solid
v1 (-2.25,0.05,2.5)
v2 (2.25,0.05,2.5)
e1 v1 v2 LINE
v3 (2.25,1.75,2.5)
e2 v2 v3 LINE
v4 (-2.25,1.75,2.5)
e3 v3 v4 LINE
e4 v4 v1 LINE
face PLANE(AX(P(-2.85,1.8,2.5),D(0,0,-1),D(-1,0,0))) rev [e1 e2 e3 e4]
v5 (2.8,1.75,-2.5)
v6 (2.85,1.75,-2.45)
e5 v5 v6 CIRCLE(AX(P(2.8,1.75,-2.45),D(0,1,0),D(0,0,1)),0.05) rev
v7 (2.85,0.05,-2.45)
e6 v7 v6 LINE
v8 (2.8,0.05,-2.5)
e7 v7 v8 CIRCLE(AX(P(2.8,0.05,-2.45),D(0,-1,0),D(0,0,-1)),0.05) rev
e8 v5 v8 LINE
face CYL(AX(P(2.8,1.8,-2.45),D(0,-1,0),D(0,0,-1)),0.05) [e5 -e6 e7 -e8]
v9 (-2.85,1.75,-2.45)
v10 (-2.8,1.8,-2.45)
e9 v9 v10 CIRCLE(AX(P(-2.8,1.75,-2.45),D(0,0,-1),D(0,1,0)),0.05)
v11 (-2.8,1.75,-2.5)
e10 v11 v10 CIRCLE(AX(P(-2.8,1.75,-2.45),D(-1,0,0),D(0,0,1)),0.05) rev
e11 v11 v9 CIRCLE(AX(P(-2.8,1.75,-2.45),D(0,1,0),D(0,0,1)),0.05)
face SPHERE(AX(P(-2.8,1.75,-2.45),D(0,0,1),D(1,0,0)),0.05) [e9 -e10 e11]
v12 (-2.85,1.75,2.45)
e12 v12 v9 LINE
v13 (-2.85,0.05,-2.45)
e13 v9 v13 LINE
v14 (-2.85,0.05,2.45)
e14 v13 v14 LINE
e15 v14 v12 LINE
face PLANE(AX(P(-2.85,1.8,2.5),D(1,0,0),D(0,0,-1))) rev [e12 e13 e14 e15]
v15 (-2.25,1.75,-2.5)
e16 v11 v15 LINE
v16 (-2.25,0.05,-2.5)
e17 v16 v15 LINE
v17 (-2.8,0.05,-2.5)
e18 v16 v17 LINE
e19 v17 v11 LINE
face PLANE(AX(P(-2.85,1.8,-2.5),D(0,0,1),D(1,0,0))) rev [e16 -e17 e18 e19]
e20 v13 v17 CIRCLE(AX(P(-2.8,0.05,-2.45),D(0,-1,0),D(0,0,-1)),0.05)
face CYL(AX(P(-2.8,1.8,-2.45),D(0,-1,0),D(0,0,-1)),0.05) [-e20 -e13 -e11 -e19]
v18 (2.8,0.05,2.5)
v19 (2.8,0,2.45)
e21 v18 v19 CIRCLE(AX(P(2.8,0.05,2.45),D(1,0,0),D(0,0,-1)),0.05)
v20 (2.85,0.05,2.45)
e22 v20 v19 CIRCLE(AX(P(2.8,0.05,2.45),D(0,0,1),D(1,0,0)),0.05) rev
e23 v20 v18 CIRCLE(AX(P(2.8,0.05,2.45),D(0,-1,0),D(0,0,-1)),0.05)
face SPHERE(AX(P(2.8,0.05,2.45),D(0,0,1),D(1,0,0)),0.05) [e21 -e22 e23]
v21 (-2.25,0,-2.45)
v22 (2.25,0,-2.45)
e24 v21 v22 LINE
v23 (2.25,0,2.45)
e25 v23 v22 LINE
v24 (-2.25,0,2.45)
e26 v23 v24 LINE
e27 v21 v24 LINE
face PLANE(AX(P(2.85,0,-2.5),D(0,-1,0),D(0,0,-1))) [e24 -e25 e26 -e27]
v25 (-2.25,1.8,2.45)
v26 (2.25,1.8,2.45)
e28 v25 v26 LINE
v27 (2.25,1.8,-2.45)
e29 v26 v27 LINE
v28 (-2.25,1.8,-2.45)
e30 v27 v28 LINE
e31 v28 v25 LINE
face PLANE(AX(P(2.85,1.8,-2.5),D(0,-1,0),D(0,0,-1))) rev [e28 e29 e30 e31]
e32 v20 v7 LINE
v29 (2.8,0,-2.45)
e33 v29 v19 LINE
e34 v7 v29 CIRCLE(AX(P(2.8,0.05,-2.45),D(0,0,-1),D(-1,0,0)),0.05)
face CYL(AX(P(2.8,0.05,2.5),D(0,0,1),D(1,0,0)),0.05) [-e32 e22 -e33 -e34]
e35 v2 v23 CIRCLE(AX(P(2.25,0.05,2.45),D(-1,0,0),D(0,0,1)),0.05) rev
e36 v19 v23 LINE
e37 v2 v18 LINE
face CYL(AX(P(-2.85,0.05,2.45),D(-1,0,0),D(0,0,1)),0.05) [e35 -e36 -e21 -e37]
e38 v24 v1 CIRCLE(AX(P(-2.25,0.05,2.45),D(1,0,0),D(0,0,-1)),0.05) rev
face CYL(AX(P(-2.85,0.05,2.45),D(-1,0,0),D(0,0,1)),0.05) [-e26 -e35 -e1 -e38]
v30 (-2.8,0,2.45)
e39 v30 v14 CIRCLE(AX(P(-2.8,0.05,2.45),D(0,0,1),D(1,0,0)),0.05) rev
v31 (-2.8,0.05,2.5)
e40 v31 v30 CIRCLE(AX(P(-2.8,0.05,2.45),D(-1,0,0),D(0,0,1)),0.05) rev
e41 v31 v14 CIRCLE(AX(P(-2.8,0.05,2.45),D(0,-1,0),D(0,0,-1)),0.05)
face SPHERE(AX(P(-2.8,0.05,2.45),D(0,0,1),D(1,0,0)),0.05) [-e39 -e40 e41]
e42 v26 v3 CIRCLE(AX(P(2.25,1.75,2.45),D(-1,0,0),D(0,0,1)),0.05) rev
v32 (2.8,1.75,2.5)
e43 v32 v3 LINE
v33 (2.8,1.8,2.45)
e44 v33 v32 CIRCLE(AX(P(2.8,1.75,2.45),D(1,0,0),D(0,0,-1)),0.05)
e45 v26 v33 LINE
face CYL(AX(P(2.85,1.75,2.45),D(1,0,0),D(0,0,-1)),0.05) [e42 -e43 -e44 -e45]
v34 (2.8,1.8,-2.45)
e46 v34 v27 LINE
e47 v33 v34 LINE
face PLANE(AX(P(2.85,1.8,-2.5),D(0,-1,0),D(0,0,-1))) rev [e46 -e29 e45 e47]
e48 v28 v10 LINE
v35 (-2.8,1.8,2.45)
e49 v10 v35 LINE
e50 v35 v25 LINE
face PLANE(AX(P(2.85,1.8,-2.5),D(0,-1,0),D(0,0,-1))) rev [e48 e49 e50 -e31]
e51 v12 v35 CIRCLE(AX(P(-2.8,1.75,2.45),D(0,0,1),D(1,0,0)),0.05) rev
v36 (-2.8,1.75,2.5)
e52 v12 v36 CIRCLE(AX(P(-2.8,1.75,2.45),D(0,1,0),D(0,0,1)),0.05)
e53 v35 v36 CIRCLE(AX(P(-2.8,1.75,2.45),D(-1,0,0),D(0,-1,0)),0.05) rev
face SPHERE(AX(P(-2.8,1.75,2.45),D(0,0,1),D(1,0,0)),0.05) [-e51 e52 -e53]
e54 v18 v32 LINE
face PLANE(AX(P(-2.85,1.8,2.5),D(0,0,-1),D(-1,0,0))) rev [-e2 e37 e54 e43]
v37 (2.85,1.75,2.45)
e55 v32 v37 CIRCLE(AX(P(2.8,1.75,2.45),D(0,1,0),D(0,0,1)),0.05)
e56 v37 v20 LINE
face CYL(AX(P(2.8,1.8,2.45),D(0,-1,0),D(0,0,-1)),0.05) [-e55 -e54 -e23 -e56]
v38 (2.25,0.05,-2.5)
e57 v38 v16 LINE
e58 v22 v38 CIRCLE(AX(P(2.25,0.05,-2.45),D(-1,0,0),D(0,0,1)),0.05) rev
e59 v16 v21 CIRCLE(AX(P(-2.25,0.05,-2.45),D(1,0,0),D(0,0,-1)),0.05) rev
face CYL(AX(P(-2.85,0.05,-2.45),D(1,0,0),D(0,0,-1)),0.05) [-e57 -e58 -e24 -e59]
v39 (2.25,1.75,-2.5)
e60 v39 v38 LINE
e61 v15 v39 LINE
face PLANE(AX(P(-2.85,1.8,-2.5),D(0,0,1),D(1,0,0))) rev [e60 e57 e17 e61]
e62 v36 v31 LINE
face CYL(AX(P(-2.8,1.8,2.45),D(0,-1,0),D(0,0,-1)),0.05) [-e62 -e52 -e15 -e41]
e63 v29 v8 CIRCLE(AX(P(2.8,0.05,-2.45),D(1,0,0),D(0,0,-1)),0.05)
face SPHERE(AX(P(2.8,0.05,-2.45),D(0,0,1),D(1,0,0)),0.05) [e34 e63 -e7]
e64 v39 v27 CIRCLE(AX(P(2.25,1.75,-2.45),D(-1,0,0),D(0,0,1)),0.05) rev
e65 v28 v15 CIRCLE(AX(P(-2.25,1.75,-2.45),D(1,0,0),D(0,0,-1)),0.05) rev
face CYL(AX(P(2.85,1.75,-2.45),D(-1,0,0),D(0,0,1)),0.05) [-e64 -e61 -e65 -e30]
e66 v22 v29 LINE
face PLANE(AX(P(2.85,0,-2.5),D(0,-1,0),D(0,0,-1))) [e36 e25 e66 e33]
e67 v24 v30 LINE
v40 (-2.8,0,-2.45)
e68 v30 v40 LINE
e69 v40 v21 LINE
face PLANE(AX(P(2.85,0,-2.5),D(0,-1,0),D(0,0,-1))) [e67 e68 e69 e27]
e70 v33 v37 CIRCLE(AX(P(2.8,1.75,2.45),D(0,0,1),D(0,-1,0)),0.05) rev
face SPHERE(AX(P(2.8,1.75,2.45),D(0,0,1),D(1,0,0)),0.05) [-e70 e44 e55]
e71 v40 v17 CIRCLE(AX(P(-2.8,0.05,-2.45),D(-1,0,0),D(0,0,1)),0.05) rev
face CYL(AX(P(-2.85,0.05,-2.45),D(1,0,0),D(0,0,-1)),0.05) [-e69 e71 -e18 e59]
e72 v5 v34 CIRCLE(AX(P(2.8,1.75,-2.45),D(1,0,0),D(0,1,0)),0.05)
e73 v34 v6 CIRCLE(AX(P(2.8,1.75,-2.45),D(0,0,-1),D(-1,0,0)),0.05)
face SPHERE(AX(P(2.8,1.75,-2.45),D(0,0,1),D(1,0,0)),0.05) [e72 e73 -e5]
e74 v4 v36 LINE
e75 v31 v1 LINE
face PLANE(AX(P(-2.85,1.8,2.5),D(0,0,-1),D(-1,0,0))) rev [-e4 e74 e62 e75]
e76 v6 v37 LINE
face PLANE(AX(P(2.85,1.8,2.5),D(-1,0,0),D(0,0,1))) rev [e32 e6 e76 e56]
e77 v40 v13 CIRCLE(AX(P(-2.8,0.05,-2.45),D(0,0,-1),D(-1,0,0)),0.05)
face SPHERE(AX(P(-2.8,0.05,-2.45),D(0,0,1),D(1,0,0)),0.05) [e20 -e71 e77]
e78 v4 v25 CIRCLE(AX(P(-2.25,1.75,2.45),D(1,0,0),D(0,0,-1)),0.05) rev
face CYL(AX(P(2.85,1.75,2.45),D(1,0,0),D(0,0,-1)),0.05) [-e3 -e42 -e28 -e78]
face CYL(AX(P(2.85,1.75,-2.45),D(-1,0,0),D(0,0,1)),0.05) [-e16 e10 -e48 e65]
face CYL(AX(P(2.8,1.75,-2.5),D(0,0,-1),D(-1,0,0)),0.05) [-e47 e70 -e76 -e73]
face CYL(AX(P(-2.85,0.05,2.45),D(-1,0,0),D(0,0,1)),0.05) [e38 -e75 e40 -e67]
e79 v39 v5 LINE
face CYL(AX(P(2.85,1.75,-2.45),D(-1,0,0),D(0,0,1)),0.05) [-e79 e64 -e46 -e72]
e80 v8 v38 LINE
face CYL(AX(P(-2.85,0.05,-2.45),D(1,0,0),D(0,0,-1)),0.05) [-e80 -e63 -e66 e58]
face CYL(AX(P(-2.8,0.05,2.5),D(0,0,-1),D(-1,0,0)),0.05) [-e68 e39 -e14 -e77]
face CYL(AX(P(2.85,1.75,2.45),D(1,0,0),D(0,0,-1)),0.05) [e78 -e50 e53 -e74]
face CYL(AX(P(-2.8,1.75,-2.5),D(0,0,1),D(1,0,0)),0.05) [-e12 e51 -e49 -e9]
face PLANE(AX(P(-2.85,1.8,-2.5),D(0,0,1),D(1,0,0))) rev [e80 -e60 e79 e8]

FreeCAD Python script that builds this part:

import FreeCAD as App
import Part
import Sketcher
from FreeCAD import Vector


def add_polygon(sketch, points):
    """Adds a closed chain of lines whose ends are joined by coincident constraints."""
    first, n = sketch.GeometryCount, len(points)
    for a, b in zip(points, points[1:] + points[:1]):
        sketch.addGeometry(Part.LineSegment(App.Vector(*a, 0), App.Vector(*b, 0)), False)
    for i in range(n):
        sketch.addConstraint(Sketcher.Constraint("Coincident", first + i, 2, first + (i + 1) % n, 1))

doc = App.newDocument("Part")
body = doc.addObject("PartDesign::Body", "Body")

# Sketch on XZ plane
sketch1 = doc.addObject("Sketcher::SketchObject", "Sketch")
body.addObject(sketch1)
sketch1.AttachmentSupport = (doc.XZ_Plane, [""])
sketch1.MapMode = "FlatFace"
add_polygon(sketch1, [(-2.85, -2.5), (-2.85, 2.5), (2.85, 2.5), (2.85, -2.5)])  # lines 0-3
sketch1.addConstraint([
    Sketcher.Constraint("Vertical", 0),
    Sketcher.Constraint("Horizontal", 1),
    Sketcher.Constraint("Vertical", 2),
    Sketcher.Constraint("Horizontal", 3),
    Sketcher.Constraint("Symmetric", 0, 2, 2, 2, -1, 1),
    Sketcher.Constraint("DistanceY", 0, 1, 0, 2, 5.0),
    Sketcher.Constraint("DistanceX", 1, 1, 1, 2, 5.7),
])
pad1 = doc.addObject("PartDesign::Pad", "Pad")
body.addObject(pad1)
pad1.Profile = sketch1
pad1.Length = 1.8
pad1.Reversed = True
doc.recompute()

fillet = doc.addObject("PartDesign::Fillet", "Fillet")
body.addObject(fillet)
fillet.Base = (pad1, ["Edge1"])
fillet.UseAllEdges = True
fillet.Radius = 0.05

doc.recompute()
